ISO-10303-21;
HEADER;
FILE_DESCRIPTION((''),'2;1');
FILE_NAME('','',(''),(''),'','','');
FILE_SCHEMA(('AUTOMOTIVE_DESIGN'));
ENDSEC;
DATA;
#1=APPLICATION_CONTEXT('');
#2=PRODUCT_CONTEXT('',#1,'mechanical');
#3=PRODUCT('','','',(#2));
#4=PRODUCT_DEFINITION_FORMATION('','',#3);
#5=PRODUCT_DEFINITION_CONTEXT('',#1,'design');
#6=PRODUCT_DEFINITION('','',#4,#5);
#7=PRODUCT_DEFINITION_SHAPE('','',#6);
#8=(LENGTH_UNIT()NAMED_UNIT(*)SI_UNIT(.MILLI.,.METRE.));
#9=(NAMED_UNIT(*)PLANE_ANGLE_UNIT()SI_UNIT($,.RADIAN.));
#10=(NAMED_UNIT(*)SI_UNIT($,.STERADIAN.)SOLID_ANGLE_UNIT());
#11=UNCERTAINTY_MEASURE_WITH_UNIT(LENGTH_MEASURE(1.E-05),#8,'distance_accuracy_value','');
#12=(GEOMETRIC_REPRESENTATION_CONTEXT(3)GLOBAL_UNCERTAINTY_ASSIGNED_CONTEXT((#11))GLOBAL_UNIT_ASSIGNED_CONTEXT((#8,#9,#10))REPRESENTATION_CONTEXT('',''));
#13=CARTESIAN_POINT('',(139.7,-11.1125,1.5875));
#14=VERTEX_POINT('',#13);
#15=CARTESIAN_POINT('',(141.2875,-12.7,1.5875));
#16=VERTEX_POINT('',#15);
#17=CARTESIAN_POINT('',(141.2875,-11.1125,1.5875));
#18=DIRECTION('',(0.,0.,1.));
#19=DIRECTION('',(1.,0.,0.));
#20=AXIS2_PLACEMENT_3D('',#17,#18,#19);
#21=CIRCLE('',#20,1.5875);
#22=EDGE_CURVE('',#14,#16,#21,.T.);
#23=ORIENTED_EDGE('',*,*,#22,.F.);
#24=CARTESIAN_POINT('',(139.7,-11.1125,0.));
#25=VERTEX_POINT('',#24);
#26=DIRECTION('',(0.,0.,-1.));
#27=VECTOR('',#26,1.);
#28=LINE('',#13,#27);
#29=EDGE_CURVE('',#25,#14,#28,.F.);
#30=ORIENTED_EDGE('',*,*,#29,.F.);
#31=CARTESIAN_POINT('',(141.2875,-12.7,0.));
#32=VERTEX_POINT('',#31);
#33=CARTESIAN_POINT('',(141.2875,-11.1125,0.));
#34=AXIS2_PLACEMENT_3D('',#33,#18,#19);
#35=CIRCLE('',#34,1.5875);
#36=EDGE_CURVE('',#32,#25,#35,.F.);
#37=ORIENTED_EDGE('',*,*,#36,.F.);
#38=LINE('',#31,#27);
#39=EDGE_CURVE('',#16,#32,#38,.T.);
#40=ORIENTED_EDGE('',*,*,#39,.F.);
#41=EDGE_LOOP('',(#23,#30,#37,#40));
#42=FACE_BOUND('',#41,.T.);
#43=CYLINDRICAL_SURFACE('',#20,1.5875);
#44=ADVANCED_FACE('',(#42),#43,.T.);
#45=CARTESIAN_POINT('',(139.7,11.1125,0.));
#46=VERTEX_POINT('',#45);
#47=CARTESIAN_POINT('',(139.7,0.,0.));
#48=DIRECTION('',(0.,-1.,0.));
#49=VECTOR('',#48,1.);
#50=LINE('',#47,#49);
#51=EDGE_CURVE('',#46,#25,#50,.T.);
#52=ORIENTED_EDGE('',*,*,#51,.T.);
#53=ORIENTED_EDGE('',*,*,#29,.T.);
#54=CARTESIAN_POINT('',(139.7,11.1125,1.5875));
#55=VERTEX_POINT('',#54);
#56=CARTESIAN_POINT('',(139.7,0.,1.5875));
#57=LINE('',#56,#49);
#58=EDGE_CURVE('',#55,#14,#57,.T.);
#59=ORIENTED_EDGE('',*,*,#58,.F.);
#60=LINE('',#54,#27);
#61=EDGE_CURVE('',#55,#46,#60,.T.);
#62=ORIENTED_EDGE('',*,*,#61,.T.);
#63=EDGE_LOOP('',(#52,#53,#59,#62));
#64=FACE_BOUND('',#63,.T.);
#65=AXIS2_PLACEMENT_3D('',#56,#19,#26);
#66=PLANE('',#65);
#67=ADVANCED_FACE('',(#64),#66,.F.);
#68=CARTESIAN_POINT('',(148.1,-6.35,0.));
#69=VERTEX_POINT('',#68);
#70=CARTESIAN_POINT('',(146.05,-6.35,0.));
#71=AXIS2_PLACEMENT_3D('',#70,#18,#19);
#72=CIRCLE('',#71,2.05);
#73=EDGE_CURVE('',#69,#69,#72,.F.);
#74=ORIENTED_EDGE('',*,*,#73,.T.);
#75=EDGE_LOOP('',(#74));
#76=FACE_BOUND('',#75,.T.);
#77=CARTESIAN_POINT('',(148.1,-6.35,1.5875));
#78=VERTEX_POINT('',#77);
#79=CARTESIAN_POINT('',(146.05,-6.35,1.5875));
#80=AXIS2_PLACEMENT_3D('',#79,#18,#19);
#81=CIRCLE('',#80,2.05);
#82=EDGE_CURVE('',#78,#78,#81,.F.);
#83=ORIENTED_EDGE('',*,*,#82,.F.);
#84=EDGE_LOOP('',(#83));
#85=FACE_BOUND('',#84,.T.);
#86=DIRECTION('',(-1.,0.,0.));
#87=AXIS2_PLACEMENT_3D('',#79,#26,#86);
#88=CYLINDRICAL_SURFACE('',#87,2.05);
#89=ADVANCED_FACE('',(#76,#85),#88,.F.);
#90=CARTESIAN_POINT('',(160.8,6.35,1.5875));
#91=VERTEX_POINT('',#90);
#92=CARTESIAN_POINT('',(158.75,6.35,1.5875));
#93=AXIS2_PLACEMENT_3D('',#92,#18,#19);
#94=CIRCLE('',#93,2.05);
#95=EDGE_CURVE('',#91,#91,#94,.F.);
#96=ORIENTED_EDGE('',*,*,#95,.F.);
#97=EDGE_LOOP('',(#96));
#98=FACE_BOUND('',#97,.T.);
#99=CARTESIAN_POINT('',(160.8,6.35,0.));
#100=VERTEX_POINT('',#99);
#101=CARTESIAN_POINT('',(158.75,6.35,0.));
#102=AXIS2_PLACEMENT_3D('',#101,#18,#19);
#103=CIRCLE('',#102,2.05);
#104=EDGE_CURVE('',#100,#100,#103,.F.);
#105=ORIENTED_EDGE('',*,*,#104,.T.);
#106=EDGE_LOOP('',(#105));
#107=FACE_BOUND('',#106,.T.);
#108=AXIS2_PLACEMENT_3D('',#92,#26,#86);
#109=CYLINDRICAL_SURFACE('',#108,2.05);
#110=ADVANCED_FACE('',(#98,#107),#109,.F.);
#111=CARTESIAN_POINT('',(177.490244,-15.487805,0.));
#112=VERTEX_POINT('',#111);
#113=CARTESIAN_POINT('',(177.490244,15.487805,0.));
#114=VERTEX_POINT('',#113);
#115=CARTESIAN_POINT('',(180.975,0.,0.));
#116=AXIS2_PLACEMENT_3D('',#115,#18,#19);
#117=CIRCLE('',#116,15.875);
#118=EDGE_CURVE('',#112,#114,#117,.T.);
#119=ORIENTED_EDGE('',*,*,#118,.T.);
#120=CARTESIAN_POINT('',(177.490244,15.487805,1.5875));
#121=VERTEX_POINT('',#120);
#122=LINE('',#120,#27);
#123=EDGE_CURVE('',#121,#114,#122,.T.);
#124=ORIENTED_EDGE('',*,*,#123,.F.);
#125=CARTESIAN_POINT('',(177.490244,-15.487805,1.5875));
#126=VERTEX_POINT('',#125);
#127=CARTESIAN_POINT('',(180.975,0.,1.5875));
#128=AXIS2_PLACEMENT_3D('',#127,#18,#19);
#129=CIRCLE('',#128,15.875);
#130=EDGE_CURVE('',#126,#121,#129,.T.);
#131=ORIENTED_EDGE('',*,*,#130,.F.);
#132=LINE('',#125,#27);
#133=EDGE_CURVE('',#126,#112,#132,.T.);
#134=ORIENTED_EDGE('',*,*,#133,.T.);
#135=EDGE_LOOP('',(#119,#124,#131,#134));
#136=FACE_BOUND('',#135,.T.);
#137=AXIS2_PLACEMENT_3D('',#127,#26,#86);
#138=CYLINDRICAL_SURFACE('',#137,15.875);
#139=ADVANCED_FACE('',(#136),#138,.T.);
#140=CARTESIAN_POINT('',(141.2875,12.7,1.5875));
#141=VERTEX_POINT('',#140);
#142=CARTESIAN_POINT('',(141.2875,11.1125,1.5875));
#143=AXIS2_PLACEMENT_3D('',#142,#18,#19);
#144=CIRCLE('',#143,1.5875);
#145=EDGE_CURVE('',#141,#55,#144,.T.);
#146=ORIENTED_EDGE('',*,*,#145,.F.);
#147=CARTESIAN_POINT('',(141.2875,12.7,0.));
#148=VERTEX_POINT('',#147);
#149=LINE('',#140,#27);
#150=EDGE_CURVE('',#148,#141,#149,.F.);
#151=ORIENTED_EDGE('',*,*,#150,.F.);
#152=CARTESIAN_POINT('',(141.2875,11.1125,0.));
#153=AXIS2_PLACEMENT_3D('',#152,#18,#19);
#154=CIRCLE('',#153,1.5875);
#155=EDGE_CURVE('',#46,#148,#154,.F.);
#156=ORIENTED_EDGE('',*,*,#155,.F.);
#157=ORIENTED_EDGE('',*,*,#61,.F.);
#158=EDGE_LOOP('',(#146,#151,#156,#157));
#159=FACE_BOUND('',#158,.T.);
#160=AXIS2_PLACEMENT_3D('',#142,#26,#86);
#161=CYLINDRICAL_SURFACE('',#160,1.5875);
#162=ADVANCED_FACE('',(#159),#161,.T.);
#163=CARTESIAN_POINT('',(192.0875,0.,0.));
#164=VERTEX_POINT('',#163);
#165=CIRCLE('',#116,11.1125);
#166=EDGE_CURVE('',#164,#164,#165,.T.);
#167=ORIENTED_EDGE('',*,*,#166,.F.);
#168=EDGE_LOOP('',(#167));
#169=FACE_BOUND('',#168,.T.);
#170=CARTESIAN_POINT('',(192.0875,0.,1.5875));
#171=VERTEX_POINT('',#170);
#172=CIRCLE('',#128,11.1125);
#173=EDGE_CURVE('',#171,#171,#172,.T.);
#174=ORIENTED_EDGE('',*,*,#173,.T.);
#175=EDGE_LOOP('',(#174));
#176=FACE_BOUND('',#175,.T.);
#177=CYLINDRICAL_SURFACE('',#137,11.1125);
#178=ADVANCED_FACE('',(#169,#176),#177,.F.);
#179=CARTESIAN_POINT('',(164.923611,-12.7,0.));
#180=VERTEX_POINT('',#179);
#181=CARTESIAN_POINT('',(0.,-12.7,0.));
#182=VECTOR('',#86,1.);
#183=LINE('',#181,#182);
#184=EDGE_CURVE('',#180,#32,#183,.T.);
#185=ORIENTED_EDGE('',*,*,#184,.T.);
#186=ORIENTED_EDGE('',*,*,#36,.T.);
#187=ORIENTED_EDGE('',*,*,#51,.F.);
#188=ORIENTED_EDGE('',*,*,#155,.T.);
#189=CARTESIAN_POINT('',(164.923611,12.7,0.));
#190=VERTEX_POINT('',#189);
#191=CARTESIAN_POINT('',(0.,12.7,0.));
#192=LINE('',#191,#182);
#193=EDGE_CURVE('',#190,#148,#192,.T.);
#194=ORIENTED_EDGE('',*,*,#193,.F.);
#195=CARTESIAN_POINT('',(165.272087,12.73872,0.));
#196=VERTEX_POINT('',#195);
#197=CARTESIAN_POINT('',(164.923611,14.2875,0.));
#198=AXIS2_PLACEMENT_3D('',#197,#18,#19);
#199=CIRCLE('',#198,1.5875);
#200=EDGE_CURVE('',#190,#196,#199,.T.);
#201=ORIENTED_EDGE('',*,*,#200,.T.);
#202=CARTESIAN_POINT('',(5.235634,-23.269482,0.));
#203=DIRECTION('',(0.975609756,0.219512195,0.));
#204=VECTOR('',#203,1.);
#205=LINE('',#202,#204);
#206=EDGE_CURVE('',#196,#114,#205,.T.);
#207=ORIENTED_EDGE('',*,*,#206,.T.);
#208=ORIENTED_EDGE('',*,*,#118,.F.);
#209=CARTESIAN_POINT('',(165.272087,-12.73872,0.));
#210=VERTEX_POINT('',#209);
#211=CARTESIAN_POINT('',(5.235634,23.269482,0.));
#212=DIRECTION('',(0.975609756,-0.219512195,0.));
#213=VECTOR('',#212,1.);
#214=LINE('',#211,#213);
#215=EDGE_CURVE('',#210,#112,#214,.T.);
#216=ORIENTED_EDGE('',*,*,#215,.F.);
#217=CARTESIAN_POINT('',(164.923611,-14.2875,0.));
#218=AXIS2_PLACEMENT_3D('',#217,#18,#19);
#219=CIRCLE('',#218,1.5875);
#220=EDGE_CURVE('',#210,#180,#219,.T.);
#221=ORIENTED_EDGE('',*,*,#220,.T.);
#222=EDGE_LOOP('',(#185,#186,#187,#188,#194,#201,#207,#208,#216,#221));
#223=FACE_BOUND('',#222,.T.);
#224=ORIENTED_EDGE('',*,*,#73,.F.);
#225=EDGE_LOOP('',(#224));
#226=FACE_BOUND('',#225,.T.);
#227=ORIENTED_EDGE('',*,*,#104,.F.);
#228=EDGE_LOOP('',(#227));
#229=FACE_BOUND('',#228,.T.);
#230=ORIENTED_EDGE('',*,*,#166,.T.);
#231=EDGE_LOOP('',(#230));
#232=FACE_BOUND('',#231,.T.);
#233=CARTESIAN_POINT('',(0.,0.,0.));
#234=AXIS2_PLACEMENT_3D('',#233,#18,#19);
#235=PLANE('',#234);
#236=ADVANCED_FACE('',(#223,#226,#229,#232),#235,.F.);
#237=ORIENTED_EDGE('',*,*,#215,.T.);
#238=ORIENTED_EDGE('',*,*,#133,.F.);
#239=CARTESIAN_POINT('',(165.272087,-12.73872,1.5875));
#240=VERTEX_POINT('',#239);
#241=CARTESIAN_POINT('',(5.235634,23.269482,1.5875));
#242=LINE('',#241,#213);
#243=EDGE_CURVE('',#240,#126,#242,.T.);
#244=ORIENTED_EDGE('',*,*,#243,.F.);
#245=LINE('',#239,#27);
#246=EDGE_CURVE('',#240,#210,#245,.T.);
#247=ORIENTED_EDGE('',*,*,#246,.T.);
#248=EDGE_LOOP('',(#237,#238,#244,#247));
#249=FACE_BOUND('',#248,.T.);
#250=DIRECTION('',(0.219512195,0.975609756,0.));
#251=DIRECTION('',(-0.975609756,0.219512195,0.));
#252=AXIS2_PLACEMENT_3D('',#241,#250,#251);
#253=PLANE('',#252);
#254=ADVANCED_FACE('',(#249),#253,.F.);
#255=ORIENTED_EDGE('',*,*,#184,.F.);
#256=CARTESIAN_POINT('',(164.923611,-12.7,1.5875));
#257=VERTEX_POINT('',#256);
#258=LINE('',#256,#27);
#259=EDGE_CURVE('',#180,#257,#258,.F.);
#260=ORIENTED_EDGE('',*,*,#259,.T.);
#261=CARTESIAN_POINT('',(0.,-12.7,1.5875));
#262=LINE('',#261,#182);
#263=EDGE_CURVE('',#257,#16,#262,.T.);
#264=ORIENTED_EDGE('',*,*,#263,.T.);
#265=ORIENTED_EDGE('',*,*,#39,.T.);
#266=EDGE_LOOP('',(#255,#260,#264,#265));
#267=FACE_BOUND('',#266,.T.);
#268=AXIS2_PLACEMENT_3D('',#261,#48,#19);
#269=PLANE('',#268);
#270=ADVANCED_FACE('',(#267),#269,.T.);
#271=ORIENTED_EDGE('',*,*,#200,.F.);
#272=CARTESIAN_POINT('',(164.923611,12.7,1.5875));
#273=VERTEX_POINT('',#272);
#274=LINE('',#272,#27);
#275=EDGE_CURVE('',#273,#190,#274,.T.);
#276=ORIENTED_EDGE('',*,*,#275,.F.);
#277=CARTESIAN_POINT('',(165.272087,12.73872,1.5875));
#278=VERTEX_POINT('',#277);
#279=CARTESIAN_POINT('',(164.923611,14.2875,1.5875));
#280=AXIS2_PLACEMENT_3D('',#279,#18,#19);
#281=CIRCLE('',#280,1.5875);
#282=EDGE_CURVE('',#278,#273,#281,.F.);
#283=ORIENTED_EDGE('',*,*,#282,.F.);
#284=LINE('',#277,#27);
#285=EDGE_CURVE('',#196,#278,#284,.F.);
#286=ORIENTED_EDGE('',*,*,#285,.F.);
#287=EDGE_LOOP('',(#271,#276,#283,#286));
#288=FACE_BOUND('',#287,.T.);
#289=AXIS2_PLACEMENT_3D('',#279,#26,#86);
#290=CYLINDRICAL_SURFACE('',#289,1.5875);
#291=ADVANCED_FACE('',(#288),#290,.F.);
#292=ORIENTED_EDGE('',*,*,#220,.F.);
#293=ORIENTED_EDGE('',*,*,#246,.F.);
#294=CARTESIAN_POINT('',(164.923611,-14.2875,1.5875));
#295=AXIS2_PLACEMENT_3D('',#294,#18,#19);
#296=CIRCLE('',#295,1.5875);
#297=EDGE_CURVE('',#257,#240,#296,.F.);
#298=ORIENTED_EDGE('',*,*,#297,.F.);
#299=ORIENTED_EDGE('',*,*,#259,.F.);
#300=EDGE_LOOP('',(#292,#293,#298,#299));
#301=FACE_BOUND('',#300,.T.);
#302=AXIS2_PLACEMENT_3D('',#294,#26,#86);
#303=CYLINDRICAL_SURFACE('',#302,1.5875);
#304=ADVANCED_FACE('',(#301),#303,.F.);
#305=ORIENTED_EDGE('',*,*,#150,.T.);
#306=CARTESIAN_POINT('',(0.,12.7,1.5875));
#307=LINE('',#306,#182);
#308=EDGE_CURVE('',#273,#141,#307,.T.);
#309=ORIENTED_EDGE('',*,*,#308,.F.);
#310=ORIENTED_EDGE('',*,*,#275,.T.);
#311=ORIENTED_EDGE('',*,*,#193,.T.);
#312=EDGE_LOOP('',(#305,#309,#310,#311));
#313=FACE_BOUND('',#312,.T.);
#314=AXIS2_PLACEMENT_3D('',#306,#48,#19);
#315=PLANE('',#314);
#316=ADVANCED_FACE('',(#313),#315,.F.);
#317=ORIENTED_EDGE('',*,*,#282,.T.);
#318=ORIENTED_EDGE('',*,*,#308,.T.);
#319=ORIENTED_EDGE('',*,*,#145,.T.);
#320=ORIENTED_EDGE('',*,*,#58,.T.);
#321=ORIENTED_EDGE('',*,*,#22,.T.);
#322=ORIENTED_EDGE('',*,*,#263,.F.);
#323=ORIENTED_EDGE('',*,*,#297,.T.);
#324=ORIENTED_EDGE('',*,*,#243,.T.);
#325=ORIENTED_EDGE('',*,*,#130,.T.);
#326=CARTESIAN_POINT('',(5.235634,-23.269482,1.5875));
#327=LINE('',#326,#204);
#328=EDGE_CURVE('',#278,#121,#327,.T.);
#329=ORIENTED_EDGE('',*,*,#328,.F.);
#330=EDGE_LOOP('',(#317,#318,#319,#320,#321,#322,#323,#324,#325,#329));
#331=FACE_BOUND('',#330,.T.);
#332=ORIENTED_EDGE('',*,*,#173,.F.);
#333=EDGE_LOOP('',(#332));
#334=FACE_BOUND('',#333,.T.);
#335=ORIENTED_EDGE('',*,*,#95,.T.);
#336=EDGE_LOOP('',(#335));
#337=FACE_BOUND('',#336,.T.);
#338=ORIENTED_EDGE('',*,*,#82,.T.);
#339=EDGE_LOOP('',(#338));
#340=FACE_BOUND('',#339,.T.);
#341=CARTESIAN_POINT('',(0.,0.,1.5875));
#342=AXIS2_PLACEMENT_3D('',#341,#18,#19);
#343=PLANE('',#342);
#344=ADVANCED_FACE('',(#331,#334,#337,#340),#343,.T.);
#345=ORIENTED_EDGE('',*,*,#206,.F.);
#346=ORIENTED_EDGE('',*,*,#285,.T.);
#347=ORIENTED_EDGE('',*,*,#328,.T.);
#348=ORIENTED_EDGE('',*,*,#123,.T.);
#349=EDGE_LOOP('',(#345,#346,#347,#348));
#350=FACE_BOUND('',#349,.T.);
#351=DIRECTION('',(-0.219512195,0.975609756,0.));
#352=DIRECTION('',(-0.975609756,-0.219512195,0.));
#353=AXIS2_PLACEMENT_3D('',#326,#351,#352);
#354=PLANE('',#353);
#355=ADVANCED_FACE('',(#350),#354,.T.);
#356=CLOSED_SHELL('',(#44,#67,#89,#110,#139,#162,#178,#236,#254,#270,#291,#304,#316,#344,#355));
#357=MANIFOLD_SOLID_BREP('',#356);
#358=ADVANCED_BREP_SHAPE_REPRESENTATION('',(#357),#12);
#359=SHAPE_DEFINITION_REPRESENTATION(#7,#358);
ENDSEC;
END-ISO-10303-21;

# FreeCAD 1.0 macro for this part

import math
import FreeCAD as App
import Part
import Sketcher
from FreeCAD import Vector
Q = App.Units.Quantity


def edges_at(feature, points):
    """Names of the edges that pass closest to the given points."""
    edges = feature.Shape.Edges
    near = lambda p: min(range(len(edges)), key=lambda i: edges[i].distToShape(Part.Vertex(*p))[0])
    return sorted({f"Edge{near(p) + 1}" for p in points})

doc = App.newDocument("Part")
body = doc.addObject("PartDesign::Body", "Body")

sketch1 = body.newObject("Sketcher::SketchObject", "Sketch")
sketch1.AttachmentSupport = (doc.getObject("XY_Plane"), [""])
sketch1.MapMode = "FlatFace"
sketch1.addGeometry([
    Part.LineSegment(Vector(165.1, 12.7, 0), Vector(139.7, 12.7, 0)),
    Part.LineSegment(Vector(139.7, 12.7, 0), Vector(139.7, -12.7, 0)),
    Part.LineSegment(Vector(139.7, -12.7, 0), Vector(165.1, -12.7, 0)),
    Part.LineSegment(Vector(165.1, -12.7, 0), Vector(177.5, -15.5, 0)),
    Part.ArcOfCircle(Part.Circle(Vector(181, 0, 0), Vector(0, 0, 1), 15.9), math.radians(-103), math.radians(103)),
    Part.LineSegment(Vector(177.5, 15.5, 0), Vector(165.1, 12.7, 0)),
    Part.Circle(Vector(146.1, -6.3, 0), Vector(0, 0, 1), 2),
    Part.Circle(Vector(158.8, 6.3, 0), Vector(0, 0, 1), 2),
    Part.Circle(Vector(181, 0, 0), Vector(0, 0, 1), 11.1),
], False)
sketch1.addConstraint([
    Sketcher.Constraint("Coincident", 0, 2, 1, 1),
    Sketcher.Constraint("Coincident", 1, 2, 2, 1),
    Sketcher.Constraint("Coincident", 2, 2, 3, 1),
    Sketcher.Constraint("Tangent", 3, 2, 4, 1),
    Sketcher.Constraint("Tangent", 4, 2, 5, 1),
    Sketcher.Constraint("Coincident", 5, 2, 0, 1),
    Sketcher.Constraint("Horizontal", 0),
    Sketcher.Constraint("Vertical", 1),
    Sketcher.Constraint("Horizontal", 2),
    Sketcher.Constraint("Coincident", 8, 3, 4, 3),
    Sketcher.Constraint("Equal", 6, 7),
    Sketcher.Constraint("Symmetric", 3, 2, 4, 2, -1),
    Sketcher.Constraint("Vertical", 2, 2, 5, 2),
    Sketcher.Constraint("Equal", 2, 1),
    Sketcher.Constraint("DistanceX", 0, 2, 0, 1, Q("1 in")),
    Sketcher.Constraint("Diameter", 8, Q("0.875 in")),
    Sketcher.Constraint("Radius", 4, Q("0.625 in")),
    Sketcher.Constraint("Distance", 3, Q("0.5 in")),
    Sketcher.Constraint("DistanceX", -1, 1, 0, 2, Q("5.5 in")),
    Sketcher.Constraint("DistanceX", 6, 3, 7, 3, Q("0.5 in")),
    Sketcher.Constraint("DistanceY", 6, 3, 7, 3, Q("0.5 in")),
    Sketcher.Constraint("Diameter", 6, 4.1),
    Sketcher.Constraint("DistanceX", -1, 1, 6, 3, Q("5.75 in")),
    Sketcher.Constraint("DistanceY", 6, 3, -1, 1, Q("0.25 in")),
])
pad1 = body.newObject("PartDesign::Pad", "Pad")
pad1.Profile = sketch1
pad1.Length = Q("0.0625 in")
doc.recompute()

fillet = body.newObject("PartDesign::Fillet", "Fillet")
fillet.Base = (pad1, edges_at(pad1, [
    (165.1, 12.7, 0.794),
    (165.1, -12.7, 0.794),
    (139.7, -12.7, 0.794),
    (139.7, 12.7, 0.794),
]))
fillet.Radius = Q("0.0625 in")

doc.recompute()
